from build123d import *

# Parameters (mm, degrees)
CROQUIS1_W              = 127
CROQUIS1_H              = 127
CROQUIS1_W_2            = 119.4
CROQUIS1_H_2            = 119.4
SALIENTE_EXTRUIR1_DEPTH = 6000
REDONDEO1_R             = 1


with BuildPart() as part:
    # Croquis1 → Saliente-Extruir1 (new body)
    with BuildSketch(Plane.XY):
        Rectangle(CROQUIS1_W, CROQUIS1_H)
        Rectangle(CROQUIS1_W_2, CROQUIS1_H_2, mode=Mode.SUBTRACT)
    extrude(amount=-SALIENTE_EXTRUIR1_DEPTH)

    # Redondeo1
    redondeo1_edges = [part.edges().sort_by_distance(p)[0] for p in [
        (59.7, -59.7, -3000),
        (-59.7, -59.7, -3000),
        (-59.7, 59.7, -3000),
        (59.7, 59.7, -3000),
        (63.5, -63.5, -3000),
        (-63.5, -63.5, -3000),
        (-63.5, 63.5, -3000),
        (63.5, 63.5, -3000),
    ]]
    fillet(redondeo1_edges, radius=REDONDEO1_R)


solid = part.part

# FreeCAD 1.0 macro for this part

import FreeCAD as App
import Part
import Sketcher
from FreeCAD import Vector


def edges_at(feature, points):
    """Names of the edges that pass closest to the given points."""
    edges = feature.Shape.Edges
    near = lambda p: min(range(len(edges)), key=lambda i: edges[i].distToShape(Part.Vertex(*p))[0])
    return sorted({f"Edge{near(p) + 1}" for p in points})

doc = App.newDocument("Part")
body = doc.addObject("PartDesign::Body", "Body")

sketch1 = doc.addObject("Sketcher::SketchObject", "Sketch")
body.addObject(sketch1)
sketch1.AttachmentSupport = (doc.XY_Plane, [""])
sketch1.MapMode = "FlatFace"
sketch1.addGeometry([
    Part.LineSegment(Vector(-64, 64, 0), Vector(-64, -64, 0)),
    Part.LineSegment(Vector(-64, -64, 0), Vector(64, -64, 0)),
    Part.LineSegment(Vector(64, -64, 0), Vector(64, 64, 0)),
    Part.LineSegment(Vector(64, 64, 0), Vector(-64, 64, 0)),
    Part.LineSegment(Vector(60, -60, 0), Vector(-60, -60, 0)),
    Part.LineSegment(Vector(-60, -60, 0), Vector(-60, 60, 0)),
    Part.LineSegment(Vector(-60, 60, 0), Vector(60, 60, 0)),
    Part.LineSegment(Vector(60, 60, 0), Vector(60, -60, 0)),
], False)
sketch1.addConstraint([
    Sketcher.Constraint("Coincident", 0, 2, 1, 1),
    Sketcher.Constraint("Coincident", 1, 2, 2, 1),
    Sketcher.Constraint("Coincident", 2, 2, 3, 1),
    Sketcher.Constraint("Coincident", 3, 2, 0, 1),
    Sketcher.Constraint("Coincident", 4, 2, 5, 1),
    Sketcher.Constraint("Coincident", 5, 2, 6, 1),
    Sketcher.Constraint("Coincident", 6, 2, 7, 1),
    Sketcher.Constraint("Coincident", 7, 2, 4, 1),
    Sketcher.Constraint("Vertical", 0),
    Sketcher.Constraint("Horizontal", 1),
    Sketcher.Constraint("Vertical", 2),
    Sketcher.Constraint("Horizontal", 3),
    Sketcher.Constraint("Horizontal", 4),
    Sketcher.Constraint("Vertical", 5),
    Sketcher.Constraint("Horizontal", 6),
    Sketcher.Constraint("Vertical", 7),
    Sketcher.Constraint("Symmetric", 0, 2, 2, 2, -1, 1),
    Sketcher.Constraint("Symmetric", 4, 2, 6, 2, -1, 1),
    Sketcher.Constraint("Equal", 3, 0),
    Sketcher.Constraint("Equal", 6, 5),
    Sketcher.Constraint("DistanceX", 1, 1, 1, 2, 127.0),
    Sketcher.Constraint("DistanceX", 4, 2, 4, 1, 119.4),
])
pad1 = doc.addObject("PartDesign::Pad", "Pad")
body.addObject(pad1)
pad1.Profile = sketch1
pad1.Length = 6000
pad1.Reversed = True
doc.recompute()

fillet = doc.addObject("PartDesign::Fillet", "Fillet")
body.addObject(fillet)
fillet.Base = (pad1, edges_at(pad1, [
    (59.7, -59.7, -3000),
    (-59.7, -59.7, -3000),
    (-59.7, 59.7, -3000),
    (59.7, 59.7, -3000),
    (63.5, -63.5, -3000),
    (-63.5, -63.5, -3000),
    (-63.5, 63.5, -3000),
    (63.5, 63.5, -3000),
]))
fillet.Radius = 1

doc.recompute()
